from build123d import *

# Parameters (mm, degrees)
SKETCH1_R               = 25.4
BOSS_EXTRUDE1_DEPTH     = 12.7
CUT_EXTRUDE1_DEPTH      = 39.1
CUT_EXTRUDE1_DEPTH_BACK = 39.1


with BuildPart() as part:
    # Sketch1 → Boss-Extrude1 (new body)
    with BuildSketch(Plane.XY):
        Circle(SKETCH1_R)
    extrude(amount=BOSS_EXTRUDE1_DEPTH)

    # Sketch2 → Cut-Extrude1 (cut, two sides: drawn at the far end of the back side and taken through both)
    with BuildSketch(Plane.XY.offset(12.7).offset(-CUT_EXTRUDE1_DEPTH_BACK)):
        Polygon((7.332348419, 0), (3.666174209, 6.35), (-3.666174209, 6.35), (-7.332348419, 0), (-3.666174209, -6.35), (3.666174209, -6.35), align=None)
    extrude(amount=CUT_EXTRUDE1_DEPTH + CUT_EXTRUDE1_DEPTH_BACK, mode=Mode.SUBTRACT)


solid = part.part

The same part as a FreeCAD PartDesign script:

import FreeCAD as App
import Part
import Sketcher

V = App.Vector
Q = App.Units.Quantity

doc = App.newDocument("Part")
body = doc.addObject("PartDesign::Body", "Body")

# Sketch on XY plane
sketch1 = body.newObject("Sketcher::SketchObject", "Sketch")
sketch1.AttachmentSupport = (doc.getObject("XY_Plane"), [""])
sketch1.MapMode = "FlatFace"
sketch1.addGeometry(Part.Circle(V(0, 0, 0), V(0, 0, 1), 25), False)
sketch1.addConstraint(Sketcher.Constraint("Coincident", 0, 3, -1, 1))
sketch1.addConstraint(Sketcher.Constraint("Diameter", 0, Q("2 in")))
pad1 = body.newObject("PartDesign::Pad", "Pad")
pad1.Profile = sketch1
pad1.Length = Q("0.5 in")

# Sketch on XY plane
sketch2 = body.newObject("Sketcher::SketchObject", "Sketch001")
sketch2.AttachmentSupport = (doc.getObject("XY_Plane"), [""])
sketch2.MapMode = "FlatFace"
sketch2.AttachmentOffset = App.Placement(V(0, 0, 0.5 * 25.4), App.Rotation())
sketch2.addGeometry(Part.LineSegment(V(7, 0, 0), V(4, 6, 0)), False)
sketch2.addGeometry(Part.LineSegment(V(4, 6, 0), V(-4, 6, 0)), False)
sketch2.addGeometry(Part.LineSegment(V(-4, 6, 0), V(-7, 0, 0)), False)
sketch2.addGeometry(Part.LineSegment(V(-7, 0, 0), V(-4, -6, 0)), False)
sketch2.addGeometry(Part.LineSegment(V(-4, -6, 0), V(4, -6, 0)), False)
sketch2.addGeometry(Part.LineSegment(V(4, -6, 0), V(7, 0, 0)), False)
sketch2.addConstraint(Sketcher.Constraint("Coincident", 0, 2, 1, 1))
sketch2.addConstraint(Sketcher.Constraint("Coincident", 1, 2, 2, 1))
sketch2.addConstraint(Sketcher.Constraint("Coincident", 2, 2, 3, 1))
sketch2.addConstraint(Sketcher.Constraint("Coincident", 3, 2, 4, 1))
sketch2.addConstraint(Sketcher.Constraint("Coincident", 4, 2, 5, 1))
sketch2.addConstraint(Sketcher.Constraint("Coincident", 5, 2, 0, 1))
sketch2.addConstraint(Sketcher.Constraint("Horizontal", 1))
sketch2.addConstraint(Sketcher.Constraint("Horizontal", 4))
sketch2.addConstraint(Sketcher.Constraint("Symmetric", 0, 2, 3, 2, -1, 1))
sketch2.addConstraint(Sketcher.Constraint("Symmetric", 2, 2, 5, 2, -1, 1))
sketch2.addConstraint(Sketcher.Constraint("PointOnObject", 2, 2, -1))
sketch2.addConstraint(Sketcher.Constraint("Parallel", 2, 5))
sketch2.addConstraint(Sketcher.Constraint("Vertical", 1, 2, 3, 2))
sketch2.addConstraint(Sketcher.Constraint("Angle", 0, Q("120 deg")))
sketch2.addConstraint(Sketcher.Constraint("DistanceY", 3, 2, 1, 2, Q("0.5 in")))
sketch2.addConstraint(Sketcher.Constraint("DistanceX", 1, 2, 1, 1, Q("7.332348 mm")))
pocket1 = body.newObject("PartDesign::Pocket", "Pocket")
pocket1.Profile = sketch2
pocket1.Type = "ThroughAll"
pocket1.Midplane = True

doc.recompute()
